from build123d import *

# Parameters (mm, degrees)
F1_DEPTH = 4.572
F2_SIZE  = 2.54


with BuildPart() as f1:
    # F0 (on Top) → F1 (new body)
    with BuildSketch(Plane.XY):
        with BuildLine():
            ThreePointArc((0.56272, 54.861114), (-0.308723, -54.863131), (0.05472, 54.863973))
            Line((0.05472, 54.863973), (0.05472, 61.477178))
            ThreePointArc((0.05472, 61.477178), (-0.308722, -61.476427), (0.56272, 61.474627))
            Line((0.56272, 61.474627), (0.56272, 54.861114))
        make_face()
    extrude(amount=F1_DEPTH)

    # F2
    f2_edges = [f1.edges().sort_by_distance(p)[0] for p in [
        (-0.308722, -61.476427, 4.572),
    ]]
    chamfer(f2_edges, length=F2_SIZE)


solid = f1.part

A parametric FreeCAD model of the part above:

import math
import FreeCAD as App
import Part
import Sketcher
Q = App.Units.Quantity


def edges_at(feature, points):
    """Names of the edges that pass closest to the given points."""
    edges = feature.Shape.Edges
    near = lambda p: min(range(len(edges)), key=lambda i: edges[i].distToShape(Part.Vertex(*p))[0])
    return sorted({f"Edge{near(p) + 1}" for p in points})

doc = App.newDocument("Part")
body = doc.addObject("PartDesign::Body", "Body")

sketch1 = body.newObject("Sketcher::SketchObject", "Sketch")
sketch1.AttachmentSupport = (doc.getObject("XY_Plane"), [""])
sketch1.MapMode = "FlatFace"
sketch1.addGeometry([
    Part.ArcOfCircle(Part.Circle(App.Vector(-0.000044, 0, 0), App.Vector(0, 0, 1), 54.864), math.radians(89.942809), math.radians(449.412282)),
    Part.LineSegment(App.Vector(0.05472, 54.863973, 0), App.Vector(0.05472, 61.477178, 0)),
    Part.ArcOfCircle(Part.Circle(App.Vector(0.000009, 0, 0), App.Vector(0, 0, 1), 61.477202), math.radians(89.949011), math.radians(449.475555)),
    Part.LineSegment(App.Vector(0.56272, 61.474627, 0), App.Vector(0.56272, 54.861114, 0)),
], False)
sketch1.addConstraint([
    Sketcher.Constraint("Coincident", 0, 1, 1, 1),
    Sketcher.Constraint("Coincident", 1, 2, 2, 1),
    Sketcher.Constraint("Coincident", 2, 2, 3, 1),
    Sketcher.Constraint("Coincident", 3, 2, 0, 2),
    Sketcher.Constraint("Vertical", 1),
    Sketcher.Constraint("Vertical", 3),
    Sketcher.Constraint("Coincident", 2, 3, -1, 1),
    Sketcher.Constraint("PointOnObject", 0, 3, -1),
    Sketcher.Constraint("Radius", 0, Q("2.16 in")),
    Sketcher.Constraint("DistanceX", 1, 2, 2, 2, Q("0.02 in")),
    Sketcher.Constraint("Radius", 2, Q("61.477202 mm")),
    Sketcher.Constraint("DistanceY", 3, 2, 3, 1, Q("6.613513 mm")),
    Sketcher.Constraint("DistanceX", -1, 1, 0, 1, Q("0.05472 mm")),
])
pad1 = body.newObject("PartDesign::Pad", "Pad")
pad1.Profile = sketch1
pad1.Length = Q("0.18 in")
doc.recompute()

chamfer = body.newObject("PartDesign::Chamfer", "Chamfer")
chamfer.Base = (pad1, edges_at(pad1, [(-0.309, -61.476, 4.572)]))
chamfer.Size = Q("0.1 in")

doc.recompute()
